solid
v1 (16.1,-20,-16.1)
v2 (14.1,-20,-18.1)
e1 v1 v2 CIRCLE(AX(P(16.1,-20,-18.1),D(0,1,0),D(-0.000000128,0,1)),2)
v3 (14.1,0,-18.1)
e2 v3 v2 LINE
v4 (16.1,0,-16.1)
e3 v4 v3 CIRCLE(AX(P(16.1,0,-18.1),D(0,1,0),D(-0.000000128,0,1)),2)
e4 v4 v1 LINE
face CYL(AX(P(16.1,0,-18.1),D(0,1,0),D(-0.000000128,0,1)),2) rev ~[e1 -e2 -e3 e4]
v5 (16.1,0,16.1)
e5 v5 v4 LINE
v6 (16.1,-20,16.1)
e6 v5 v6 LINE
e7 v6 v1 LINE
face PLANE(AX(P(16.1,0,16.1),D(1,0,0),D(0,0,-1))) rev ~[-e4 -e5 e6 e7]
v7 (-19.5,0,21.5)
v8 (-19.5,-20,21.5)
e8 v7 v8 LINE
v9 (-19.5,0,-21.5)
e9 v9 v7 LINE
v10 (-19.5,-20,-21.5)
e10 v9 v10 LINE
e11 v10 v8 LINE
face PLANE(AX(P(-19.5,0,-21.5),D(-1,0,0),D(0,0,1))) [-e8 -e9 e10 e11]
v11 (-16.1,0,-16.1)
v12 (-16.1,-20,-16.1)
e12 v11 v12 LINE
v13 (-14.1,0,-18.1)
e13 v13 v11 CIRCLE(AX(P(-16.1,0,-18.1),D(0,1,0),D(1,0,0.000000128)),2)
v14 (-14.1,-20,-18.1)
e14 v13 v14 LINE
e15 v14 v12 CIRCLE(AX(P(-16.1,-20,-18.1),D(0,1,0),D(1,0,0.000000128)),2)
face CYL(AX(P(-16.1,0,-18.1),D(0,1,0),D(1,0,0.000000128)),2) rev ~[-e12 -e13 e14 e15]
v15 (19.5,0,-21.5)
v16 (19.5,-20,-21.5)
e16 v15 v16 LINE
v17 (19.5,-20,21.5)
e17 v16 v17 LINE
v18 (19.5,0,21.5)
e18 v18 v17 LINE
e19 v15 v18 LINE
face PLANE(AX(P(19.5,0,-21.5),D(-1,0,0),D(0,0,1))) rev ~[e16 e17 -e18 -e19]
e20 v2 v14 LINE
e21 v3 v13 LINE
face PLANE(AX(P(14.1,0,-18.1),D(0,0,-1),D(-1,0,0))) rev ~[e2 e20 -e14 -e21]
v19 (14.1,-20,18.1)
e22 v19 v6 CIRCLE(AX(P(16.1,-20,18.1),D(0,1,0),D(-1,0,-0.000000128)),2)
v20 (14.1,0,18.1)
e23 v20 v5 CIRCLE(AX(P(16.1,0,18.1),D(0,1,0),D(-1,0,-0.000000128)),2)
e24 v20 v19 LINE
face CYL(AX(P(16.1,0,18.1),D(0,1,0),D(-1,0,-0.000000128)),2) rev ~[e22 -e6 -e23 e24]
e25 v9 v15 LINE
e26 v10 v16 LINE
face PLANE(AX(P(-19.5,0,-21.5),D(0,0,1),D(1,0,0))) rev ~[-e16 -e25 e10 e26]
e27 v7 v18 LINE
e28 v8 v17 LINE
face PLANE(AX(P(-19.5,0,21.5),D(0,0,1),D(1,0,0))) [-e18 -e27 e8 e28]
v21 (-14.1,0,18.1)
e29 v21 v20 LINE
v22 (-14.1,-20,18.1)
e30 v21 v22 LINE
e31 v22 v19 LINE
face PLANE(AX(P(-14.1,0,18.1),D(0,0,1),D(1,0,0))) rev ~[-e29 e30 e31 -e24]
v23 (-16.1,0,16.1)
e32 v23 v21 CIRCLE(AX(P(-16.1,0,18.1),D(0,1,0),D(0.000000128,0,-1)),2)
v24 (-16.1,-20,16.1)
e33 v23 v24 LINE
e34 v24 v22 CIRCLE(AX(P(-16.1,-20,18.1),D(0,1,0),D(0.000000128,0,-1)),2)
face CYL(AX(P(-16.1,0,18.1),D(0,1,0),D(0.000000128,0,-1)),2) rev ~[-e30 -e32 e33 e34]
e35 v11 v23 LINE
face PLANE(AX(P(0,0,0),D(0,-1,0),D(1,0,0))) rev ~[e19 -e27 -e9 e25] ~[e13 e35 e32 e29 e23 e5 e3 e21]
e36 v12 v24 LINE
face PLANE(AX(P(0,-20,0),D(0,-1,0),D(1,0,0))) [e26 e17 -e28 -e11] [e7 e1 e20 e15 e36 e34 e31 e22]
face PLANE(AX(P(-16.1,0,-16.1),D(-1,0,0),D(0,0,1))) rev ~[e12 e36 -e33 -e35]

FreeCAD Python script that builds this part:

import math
import FreeCAD as App
import Part
import Sketcher
from FreeCAD import Vector
Q = App.Units.Quantity

doc = App.newDocument("Part")
body = doc.addObject("PartDesign::Body", "Body")

sketch1 = body.newObject("Sketcher::SketchObject", "Sketch")
sketch1.AttachmentSupport = (doc.getObject("XZ_Plane"), [""])
sketch1.MapMode = "FlatFace"
sketch1.addGeometry([
    Part.LineSegment(Vector(-19.5, 21.5, 0), Vector(-19.5, -21.5, 0)),
    Part.LineSegment(Vector(-19.5, -21.5, 0), Vector(19.5, -21.5, 0)),
    Part.LineSegment(Vector(19.5, -21.5, 0), Vector(19.5, 21.5, 0)),
    Part.LineSegment(Vector(19.5, 21.5, 0), Vector(-19.5, 21.5, 0)),
    Part.LineSegment(Vector(-14.1, 18.1, 0), Vector(14.1, 18.1, 0)),
    Part.ArcOfCircle(Part.Circle(Vector(16.1, 18.1, 0), Vector(0, 0, 1), 2), math.radians(-90), math.radians(180)),
    Part.LineSegment(Vector(16.1, 16.1, 0), Vector(16.1, -16.1, 0)),
    Part.ArcOfCircle(Part.Circle(Vector(16.1, -18.1, 0), Vector(0, 0, 1), 2), math.radians(180), math.radians(450)),
    Part.LineSegment(Vector(14.1, -18.1, 0), Vector(-14.1, -18.1, 0)),
    Part.ArcOfCircle(Part.Circle(Vector(-16.1, -18.1, 0), Vector(0, 0, 1), 2), math.radians(90), math.radians(360)),
    Part.LineSegment(Vector(-16.1, -16.1, 0), Vector(-16.1, 16.1, 0)),
    Part.ArcOfCircle(Part.Circle(Vector(-16.1, 18.1, 0), Vector(0, 0, 1), 2), math.radians(0), math.radians(270)),
], False)
sketch1.addConstraint([
    Sketcher.Constraint("Coincident", 0, 2, 1, 1),
    Sketcher.Constraint("Coincident", 1, 2, 2, 1),
    Sketcher.Constraint("Coincident", 2, 2, 3, 1),
    Sketcher.Constraint("Coincident", 3, 2, 0, 1),
    Sketcher.Constraint("Coincident", 4, 2, 5, 2),
    Sketcher.Constraint("Coincident", 5, 1, 6, 1),
    Sketcher.Constraint("Coincident", 6, 2, 7, 2),
    Sketcher.Constraint("Coincident", 7, 1, 8, 1),
    Sketcher.Constraint("Coincident", 8, 2, 9, 2),
    Sketcher.Constraint("Coincident", 9, 1, 10, 1),
    Sketcher.Constraint("Coincident", 10, 2, 11, 2),
    Sketcher.Constraint("Coincident", 11, 1, 4, 1),
    Sketcher.Constraint("Vertical", 0),
    Sketcher.Constraint("Horizontal", 1),
    Sketcher.Constraint("Vertical", 2),
    Sketcher.Constraint("Horizontal", 3),
    Sketcher.Constraint("Horizontal", 4),
    Sketcher.Constraint("Vertical", 6),
    Sketcher.Constraint("Horizontal", 8),
    Sketcher.Constraint("Vertical", 10),
    Sketcher.Constraint("Equal", 5, 7),
    Sketcher.Constraint("Equal", 7, 9),
    Sketcher.Constraint("Equal", 9, 11),
    Sketcher.Constraint("Symmetric", 5, 3, 9, 3, -1, 1),
    Sketcher.Constraint("Symmetric", 7, 3, 11, 3, -1, 1),
    Sketcher.Constraint("Symmetric", 0, 2, 2, 2, -1, 1),
    Sketcher.Constraint("Symmetric", 7, 3, 9, 3, -2),
    Sketcher.Constraint("Horizontal", 11, 3, 4, 2),
    Sketcher.Constraint("Horizontal", 9, 3, 7, 1),
    Sketcher.Constraint("Vertical", 7, 3, 5, 1),
    Sketcher.Constraint("Vertical", 11, 3, 9, 1),
    Sketcher.Constraint("Radius", 5, Q("2 mm")),
    Sketcher.Constraint("DistanceX", 1, 1, 1, 2, Q("39 mm")),
    Sketcher.Constraint("DistanceY", 0, 2, 0, 1, Q("43 mm")),
    Sketcher.Constraint("DistanceX", 4, 1, 4, 2, Q("28.2 mm")),
    Sketcher.Constraint("DistanceY", 6, 2, 6, 1, Q("32.2 mm")),
])
pad1 = body.newObject("PartDesign::Pad", "Pad")
pad1.Profile = sketch1
pad1.Length = 20

doc.recompute()
